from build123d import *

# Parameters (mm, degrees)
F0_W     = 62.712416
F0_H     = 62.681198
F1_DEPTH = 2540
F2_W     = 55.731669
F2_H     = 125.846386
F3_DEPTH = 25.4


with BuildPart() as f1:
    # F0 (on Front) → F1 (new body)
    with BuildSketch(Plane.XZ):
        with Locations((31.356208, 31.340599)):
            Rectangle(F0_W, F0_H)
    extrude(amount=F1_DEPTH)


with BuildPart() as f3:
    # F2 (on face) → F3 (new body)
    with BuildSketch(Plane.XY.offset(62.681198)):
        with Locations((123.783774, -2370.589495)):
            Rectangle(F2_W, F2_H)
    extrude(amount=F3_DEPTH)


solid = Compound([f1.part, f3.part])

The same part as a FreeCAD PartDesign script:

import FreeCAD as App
import Part
import Sketcher

doc = App.newDocument("Part")
params = doc.addObject("Spreadsheet::Sheet", "Params")
for row, (alias, value) in enumerate([
    ("pad1_length", "100 in"),
    ("pad2_length", "1 in"),
], start=1):
    params.set(f"A{row}", alias)
    params.set(f"B{row}", "=" + value)
    params.setAlias(f"B{row}", alias)

body = doc.addObject("PartDesign::Body", "Body")

sketch1 = doc.addObject("Sketcher::SketchObject", "Sketch")
body.addObject(sketch1)
sketch1.AttachmentSupport = (doc.XZ_Plane, [""])
sketch1.MapMode = "FlatFace"
sketch1.addGeometry([
    Part.LineSegment(App.Vector(0, 63, 0), App.Vector(0, 0, 0)),
    Part.LineSegment(App.Vector(0, 0, 0), App.Vector(63, 0, 0)),
    Part.LineSegment(App.Vector(63, 0, 0), App.Vector(63, 63, 0)),
    Part.LineSegment(App.Vector(63, 63, 0), App.Vector(0, 63, 0)),
], False)
sketch1.addConstraint([
    Sketcher.Constraint("Coincident", 0, 2, 1, 1),
    Sketcher.Constraint("Coincident", 1, 2, 2, 1),
    Sketcher.Constraint("Coincident", 2, 2, 3, 1),
    Sketcher.Constraint("Coincident", 3, 2, 0, 1),
    Sketcher.Constraint("Vertical", 0),
    Sketcher.Constraint("Horizontal", 1),
    Sketcher.Constraint("Vertical", 2),
    Sketcher.Constraint("Horizontal", 3),
    Sketcher.Constraint("Coincident", 0, 2, -1, 1),
    Sketcher.Constraint("DistanceY", 0, 2, 0, 1, 62.681198),
    Sketcher.Constraint("DistanceX", 1, 1, 1, 2, 62.712416),
])
pad1 = doc.addObject("PartDesign::Pad", "Pad")
body.addObject(pad1)
pad1.Profile = sketch1
pad1.setExpression("Length", "Params.pad1_length")
body2 = doc.addObject("PartDesign::Body", "Body001")

sketch2 = doc.addObject("Sketcher::SketchObject", "Sketch001")
body2.addObject(sketch2)
sketch2.AttachmentSupport = (doc.getObject("XY_Plane001"), [""])
sketch2.MapMode = "FlatFace"
sketch2.AttachmentOffset = App.Placement(App.Vector(0, 0, 62.681198), App.Rotation())
sketch2.addGeometry([
    Part.LineSegment(App.Vector(96, -2308, 0), App.Vector(96, -2434, 0)),
    Part.LineSegment(App.Vector(96, -2434, 0), App.Vector(152, -2434, 0)),
    Part.LineSegment(App.Vector(152, -2434, 0), App.Vector(152, -2308, 0)),
    Part.LineSegment(App.Vector(152, -2308, 0), App.Vector(96, -2308, 0)),
], False)
sketch2.addConstraint([
    Sketcher.Constraint("Coincident", 0, 2, 1, 1),
    Sketcher.Constraint("Coincident", 1, 2, 2, 1),
    Sketcher.Constraint("Coincident", 2, 2, 3, 1),
    Sketcher.Constraint("Coincident", 3, 2, 0, 1),
    Sketcher.Constraint("Vertical", 0),
    Sketcher.Constraint("Horizontal", 1),
    Sketcher.Constraint("Vertical", 2),
    Sketcher.Constraint("Horizontal", 3),
    Sketcher.Constraint("DistanceX", 1, 1, 1, 2, 55.731669),
    Sketcher.Constraint("DistanceY", 0, 2, 0, 1, 125.846386),
    Sketcher.Constraint("DistanceX", -1, 1, 0, 2, 95.91794),
    Sketcher.Constraint("DistanceY", 0, 2, -1, 1, 2433.512688),
])
pad2 = doc.addObject("PartDesign::Pad", "Pad001")
body2.addObject(pad2)
pad2.Profile = sketch2
pad2.setExpression("Length", "Params.pad2_length")

doc.recompute()
